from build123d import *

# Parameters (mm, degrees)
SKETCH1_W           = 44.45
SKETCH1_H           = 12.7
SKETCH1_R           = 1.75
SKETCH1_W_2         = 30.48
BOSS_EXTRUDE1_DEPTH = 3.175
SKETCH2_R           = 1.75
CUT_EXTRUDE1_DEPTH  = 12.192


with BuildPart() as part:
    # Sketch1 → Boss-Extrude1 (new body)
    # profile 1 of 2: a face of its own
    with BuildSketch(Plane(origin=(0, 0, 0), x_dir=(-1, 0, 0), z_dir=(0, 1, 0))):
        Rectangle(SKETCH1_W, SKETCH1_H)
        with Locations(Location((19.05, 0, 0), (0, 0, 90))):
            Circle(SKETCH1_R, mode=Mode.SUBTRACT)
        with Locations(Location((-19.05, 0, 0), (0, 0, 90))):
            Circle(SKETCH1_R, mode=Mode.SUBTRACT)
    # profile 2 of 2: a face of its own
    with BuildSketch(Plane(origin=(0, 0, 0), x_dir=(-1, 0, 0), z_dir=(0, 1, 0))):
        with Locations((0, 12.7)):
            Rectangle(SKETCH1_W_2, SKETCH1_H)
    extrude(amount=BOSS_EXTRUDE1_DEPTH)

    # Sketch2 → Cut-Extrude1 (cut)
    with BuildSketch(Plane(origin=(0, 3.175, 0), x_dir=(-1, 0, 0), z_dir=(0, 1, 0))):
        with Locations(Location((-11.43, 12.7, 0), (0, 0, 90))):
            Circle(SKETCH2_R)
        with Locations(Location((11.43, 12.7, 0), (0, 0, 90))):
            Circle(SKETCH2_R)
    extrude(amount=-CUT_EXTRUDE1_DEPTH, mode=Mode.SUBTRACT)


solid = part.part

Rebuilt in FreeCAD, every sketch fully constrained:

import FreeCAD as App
import Part
import Sketcher

V = App.Vector
Q = App.Units.Quantity

doc = App.newDocument("Part")
body = doc.addObject("PartDesign::Body", "Body")

sketch1 = body.newObject("Sketcher::SketchObject", "Sketch")
sketch1.AttachmentSupport = (doc.getObject("XZ_Plane"), [""])
sketch1.MapMode = "FlatFace"
sketch1.addGeometry([
    Part.LineSegment(V(22.225, 6.35, 0), V(22.225, -6.35, 0)),
    Part.LineSegment(V(22.225, -6.35, 0), V(-22.225, -6.35, 0)),
    Part.LineSegment(V(-22.225, -6.35, 0), V(-22.225, 6.35, 0)),
    Part.LineSegment(V(-22.225, 6.35, 0), V(-15.24, 6.35, 0)),
    Part.LineSegment(V(-15.24, 6.35, 0), V(-15.24, 19.05, 0)),
    Part.LineSegment(V(-15.24, 19.05, 0), V(15.24, 19.05, 0)),
    Part.LineSegment(V(15.24, 19.05, 0), V(15.24, 6.35, 0)),
    Part.LineSegment(V(15.24, 6.35, 0), V(22.225, 6.35, 0)),
    Part.Circle(V(19.05, 0, 0), V(0, 0, 1), 1.75),
    Part.Circle(V(-19.05, 0, 0), V(0, 0, 1), 1.75),
], False)
sketch1.addConstraint([
    Sketcher.Constraint("Coincident", 0, 2, 1, 1),
    Sketcher.Constraint("Coincident", 1, 2, 2, 1),
    Sketcher.Constraint("Coincident", 2, 2, 3, 1),
    Sketcher.Constraint("Coincident", 3, 2, 4, 1),
    Sketcher.Constraint("Coincident", 4, 2, 5, 1),
    Sketcher.Constraint("Coincident", 5, 2, 6, 1),
    Sketcher.Constraint("Coincident", 6, 2, 7, 1),
    Sketcher.Constraint("Coincident", 7, 2, 0, 1),
    Sketcher.Constraint("Vertical", 0),
    Sketcher.Constraint("Horizontal", 1),
    Sketcher.Constraint("Vertical", 2),
    Sketcher.Constraint("Horizontal", 3),
    Sketcher.Constraint("Vertical", 4),
    Sketcher.Constraint("Horizontal", 5),
    Sketcher.Constraint("Vertical", 6),
    Sketcher.Constraint("Horizontal", 7),
    Sketcher.Constraint("Equal", 8, 9),
    Sketcher.Constraint("Symmetric", 8, 3, 9, 3, -1, 1),
    Sketcher.Constraint("Symmetric", 0, 2, 2, 2, -1, 1),
    Sketcher.Constraint("Symmetric", 3, 2, 6, 2, -2),
    Sketcher.Constraint("PointOnObject", 8, 3, -1),
    Sketcher.Constraint("Equal", 2, 4),
    Sketcher.Constraint("DistanceX", 5, 1, 5, 2, Q("1.2 in")),
    Sketcher.Constraint("DistanceY", 0, 2, 0, 1, Q("0.5 in")),
    Sketcher.Constraint("DistanceX", 1, 2, 1, 1, Q("1.75 in")),
    Sketcher.Constraint("DistanceX", 9, 3, 8, 3, Q("1.5 in")),
    Sketcher.Constraint("Diameter", 8, 3.5),
])
pad1 = body.newObject("PartDesign::Pad", "Pad")
pad1.Profile = sketch1
pad1.Length = Q("0.125 in")
pad1.Reversed = True

sketch2 = body.newObject("Sketcher::SketchObject", "Sketch001")
sketch2.AttachmentSupport = (doc.getObject("XZ_Plane"), [""])
sketch2.MapMode = "FlatFace"
sketch2.AttachmentOffset = App.Placement(V(0, 0, -0.125 * 25.4), App.Rotation())
sketch2.addGeometry([
    Part.Circle(V(11.43, 12.7, 0), V(0, 0, 1), 1.75),
    Part.Circle(V(-11.43, 12.7, 0), V(0, 0, 1), 1.75),
], False)
sketch2.addConstraint([
    Sketcher.Constraint("Equal", 0, 1),
    Sketcher.Constraint("Symmetric", 0, 3, 1, 3, -2),
    Sketcher.Constraint("DistanceY", -1, 1, 0, 3, Q("0.5 in")),
    Sketcher.Constraint("DistanceX", 1, 3, 0, 3, Q("0.9 in")),
    Sketcher.Constraint("Diameter", 0, 3.5),
])
pocket1 = body.newObject("PartDesign::Pocket", "Pocket")
pocket1.Profile = sketch2
pocket1.Length = Q("0.48 in")
pocket1.Reversed = True

doc.recompute()
